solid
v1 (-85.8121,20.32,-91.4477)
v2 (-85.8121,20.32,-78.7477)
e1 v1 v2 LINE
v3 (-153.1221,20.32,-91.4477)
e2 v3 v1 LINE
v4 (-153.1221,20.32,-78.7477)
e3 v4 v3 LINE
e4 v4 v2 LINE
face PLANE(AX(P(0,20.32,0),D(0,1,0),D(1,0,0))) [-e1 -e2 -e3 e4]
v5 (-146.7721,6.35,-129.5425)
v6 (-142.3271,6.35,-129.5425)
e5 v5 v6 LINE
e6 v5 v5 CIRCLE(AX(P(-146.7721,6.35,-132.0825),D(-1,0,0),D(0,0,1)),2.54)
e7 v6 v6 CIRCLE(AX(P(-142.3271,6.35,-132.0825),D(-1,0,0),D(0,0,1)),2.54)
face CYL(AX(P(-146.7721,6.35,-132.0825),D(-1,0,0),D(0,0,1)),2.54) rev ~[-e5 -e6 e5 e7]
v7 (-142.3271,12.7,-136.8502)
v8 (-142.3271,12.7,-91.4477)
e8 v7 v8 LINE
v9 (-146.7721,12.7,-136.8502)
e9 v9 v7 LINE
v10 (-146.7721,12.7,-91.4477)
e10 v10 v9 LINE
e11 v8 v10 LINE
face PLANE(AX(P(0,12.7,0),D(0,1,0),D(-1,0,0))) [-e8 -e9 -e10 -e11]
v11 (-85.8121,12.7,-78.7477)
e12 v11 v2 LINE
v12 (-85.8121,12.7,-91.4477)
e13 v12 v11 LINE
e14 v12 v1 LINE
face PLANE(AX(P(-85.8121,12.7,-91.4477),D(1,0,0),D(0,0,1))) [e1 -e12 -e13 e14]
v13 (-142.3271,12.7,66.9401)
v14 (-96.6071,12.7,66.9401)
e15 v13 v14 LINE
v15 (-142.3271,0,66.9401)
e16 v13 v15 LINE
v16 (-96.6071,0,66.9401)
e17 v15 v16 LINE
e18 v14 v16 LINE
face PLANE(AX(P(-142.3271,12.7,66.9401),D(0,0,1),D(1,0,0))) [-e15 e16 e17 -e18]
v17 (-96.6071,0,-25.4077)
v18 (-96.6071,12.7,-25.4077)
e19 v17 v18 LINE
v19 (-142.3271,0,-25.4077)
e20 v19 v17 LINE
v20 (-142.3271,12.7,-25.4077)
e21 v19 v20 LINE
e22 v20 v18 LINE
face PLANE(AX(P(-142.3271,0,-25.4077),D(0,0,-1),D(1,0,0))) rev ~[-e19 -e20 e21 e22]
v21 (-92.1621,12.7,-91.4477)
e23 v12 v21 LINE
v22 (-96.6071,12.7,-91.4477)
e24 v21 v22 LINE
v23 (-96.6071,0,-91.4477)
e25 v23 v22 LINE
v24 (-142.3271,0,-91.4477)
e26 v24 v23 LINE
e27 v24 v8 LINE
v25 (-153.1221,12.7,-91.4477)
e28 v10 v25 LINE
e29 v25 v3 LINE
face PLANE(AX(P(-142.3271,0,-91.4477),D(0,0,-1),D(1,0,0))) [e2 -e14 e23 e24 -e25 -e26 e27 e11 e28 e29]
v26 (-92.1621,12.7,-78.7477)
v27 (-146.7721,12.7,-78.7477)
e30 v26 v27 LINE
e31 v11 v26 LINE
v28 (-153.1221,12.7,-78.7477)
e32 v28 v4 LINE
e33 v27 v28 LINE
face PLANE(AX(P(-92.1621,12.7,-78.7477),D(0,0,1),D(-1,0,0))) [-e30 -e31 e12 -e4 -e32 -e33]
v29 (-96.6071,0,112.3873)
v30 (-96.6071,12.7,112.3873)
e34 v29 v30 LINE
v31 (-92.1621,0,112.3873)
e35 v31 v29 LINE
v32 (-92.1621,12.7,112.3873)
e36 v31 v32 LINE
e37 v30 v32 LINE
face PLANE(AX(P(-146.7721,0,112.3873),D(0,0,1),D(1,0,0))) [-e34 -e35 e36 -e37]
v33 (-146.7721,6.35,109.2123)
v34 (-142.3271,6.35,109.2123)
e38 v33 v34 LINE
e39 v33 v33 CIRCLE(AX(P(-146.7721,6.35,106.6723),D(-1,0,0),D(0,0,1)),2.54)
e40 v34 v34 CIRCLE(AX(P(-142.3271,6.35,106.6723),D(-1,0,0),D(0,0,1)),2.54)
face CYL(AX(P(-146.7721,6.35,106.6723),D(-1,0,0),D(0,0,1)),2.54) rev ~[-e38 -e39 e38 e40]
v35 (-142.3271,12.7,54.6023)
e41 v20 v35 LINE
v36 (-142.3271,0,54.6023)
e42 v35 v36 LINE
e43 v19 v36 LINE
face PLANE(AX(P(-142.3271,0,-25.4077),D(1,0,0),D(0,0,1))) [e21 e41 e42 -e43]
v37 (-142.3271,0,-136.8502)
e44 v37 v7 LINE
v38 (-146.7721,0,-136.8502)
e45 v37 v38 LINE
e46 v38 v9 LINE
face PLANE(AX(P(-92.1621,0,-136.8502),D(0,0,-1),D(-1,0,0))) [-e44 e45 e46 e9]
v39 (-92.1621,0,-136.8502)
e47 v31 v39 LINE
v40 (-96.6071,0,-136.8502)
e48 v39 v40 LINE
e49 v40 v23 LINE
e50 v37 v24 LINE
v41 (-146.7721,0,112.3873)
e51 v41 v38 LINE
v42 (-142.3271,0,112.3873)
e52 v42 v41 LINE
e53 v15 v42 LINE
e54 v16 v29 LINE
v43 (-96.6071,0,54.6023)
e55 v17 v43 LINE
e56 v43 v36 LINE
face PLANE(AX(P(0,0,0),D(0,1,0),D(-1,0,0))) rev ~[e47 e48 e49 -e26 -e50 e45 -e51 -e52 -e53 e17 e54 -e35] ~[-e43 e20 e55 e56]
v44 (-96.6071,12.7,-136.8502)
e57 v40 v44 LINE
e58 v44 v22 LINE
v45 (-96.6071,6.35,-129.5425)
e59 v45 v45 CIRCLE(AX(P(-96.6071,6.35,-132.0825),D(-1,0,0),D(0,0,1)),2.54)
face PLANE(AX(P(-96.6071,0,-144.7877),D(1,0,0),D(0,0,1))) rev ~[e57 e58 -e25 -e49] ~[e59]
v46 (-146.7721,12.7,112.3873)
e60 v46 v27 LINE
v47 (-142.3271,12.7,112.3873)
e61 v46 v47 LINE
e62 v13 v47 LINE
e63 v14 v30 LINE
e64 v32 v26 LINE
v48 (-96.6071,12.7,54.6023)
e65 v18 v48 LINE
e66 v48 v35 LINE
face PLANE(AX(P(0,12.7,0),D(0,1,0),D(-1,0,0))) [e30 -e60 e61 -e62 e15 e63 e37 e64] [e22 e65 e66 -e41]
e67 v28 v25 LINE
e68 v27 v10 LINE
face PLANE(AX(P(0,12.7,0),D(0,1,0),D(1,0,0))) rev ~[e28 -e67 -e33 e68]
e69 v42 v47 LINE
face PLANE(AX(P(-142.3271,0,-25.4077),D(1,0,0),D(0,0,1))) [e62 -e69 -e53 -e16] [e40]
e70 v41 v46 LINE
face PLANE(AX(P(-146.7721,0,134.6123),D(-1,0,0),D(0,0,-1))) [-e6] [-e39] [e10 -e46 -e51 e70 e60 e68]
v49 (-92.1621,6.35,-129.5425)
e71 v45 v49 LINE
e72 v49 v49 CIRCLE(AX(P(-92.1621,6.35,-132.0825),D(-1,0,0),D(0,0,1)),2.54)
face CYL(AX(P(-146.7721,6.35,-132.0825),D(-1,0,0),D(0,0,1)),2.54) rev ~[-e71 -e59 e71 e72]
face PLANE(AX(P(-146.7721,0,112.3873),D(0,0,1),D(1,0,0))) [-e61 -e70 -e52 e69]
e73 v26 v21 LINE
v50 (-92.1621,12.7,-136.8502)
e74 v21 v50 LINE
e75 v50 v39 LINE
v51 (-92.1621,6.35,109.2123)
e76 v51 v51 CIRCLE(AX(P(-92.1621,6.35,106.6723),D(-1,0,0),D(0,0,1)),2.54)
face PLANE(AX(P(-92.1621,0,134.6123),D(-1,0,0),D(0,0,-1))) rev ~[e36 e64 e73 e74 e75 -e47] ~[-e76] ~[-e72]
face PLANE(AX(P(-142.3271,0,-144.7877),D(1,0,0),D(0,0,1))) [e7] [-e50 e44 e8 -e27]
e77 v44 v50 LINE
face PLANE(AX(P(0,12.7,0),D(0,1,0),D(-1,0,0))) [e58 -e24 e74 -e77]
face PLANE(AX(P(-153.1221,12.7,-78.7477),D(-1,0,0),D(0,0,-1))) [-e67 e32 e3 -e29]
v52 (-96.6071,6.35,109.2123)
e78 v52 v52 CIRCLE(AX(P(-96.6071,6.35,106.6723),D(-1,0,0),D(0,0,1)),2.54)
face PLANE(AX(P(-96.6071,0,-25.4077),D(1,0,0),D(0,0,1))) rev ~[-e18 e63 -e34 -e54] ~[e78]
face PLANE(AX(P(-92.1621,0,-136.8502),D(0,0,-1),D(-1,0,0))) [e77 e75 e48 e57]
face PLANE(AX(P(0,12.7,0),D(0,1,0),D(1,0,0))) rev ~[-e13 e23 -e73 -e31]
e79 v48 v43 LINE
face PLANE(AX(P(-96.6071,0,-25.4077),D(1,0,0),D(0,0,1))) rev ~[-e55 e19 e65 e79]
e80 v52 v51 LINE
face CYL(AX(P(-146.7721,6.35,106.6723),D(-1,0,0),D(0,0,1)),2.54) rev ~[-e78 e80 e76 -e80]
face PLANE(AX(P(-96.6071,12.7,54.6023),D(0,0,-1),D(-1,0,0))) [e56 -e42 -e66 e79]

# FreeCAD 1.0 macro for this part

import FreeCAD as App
import Part
import Sketcher
Q = App.Units.Quantity


def add_polygon(sketch, points):
    """Adds a closed chain of lines whose ends are joined by coincident constraints."""
    first, n = sketch.GeometryCount, len(points)
    for a, b in zip(points, points[1:] + points[:1]):
        sketch.addGeometry(Part.LineSegment(App.Vector(*a, 0), App.Vector(*b, 0)), False)
    for i in range(n):
        sketch.addConstraint(Sketcher.Constraint("Coincident", first + i, 2, first + (i + 1) % n, 1))

doc = App.newDocument("Part")
params = doc.addObject("Spreadsheet::Sheet", "Params")
for row, (alias, value) in enumerate([
    ("sketch1_height", "11 in"),
    ("sketch1_width", "1.8 in"),
    ("sketch1_height2", "2.1 in"),
    ("sketch1_width2", "0.175 in"),
    ("pad1_length", "0.5 in"),
    ("sketch2_height", "0.5 in"),
    ("sketch2_width", "2.65 in"),
    ("pad2_length", "0.3 in"),
    ("sketch3_diameter", "0.2 in"),
    ("pocket1_length", "1000 in"),
    ("sketch4_diameter", "0.2 in"),
    ("pocket2_length", "1000 in"),
    ("sketch5_width", "1.8 in"),
    ("pad3_length", "0.5 in"),
    ("sketch6_height", "0.5 in"),
    ("sketch6_width", "0.175 in"),
    ("pocket3_length", "0.875 in"),
    ("sketch7_height", "0.5 in"),
    ("sketch7_width", "0.175 in"),
    ("pocket4_length", "0.3125 in"),
], start=1):
    params.set(f"A{row}", alias)
    params.set(f"B{row}", "=" + value)
    params.setAlias(f"B{row}", alias)

body = doc.addObject("PartDesign::Body", "Body")

# Sketch on XZ plane
sketch1 = doc.addObject("Sketcher::SketchObject", "Sketch")
body.addObject(sketch1)
sketch1.AttachmentSupport = (doc.XZ_Plane, [""])
sketch1.MapMode = "FlatFace"
add_polygon(sketch1, [(-142.3, -144.8), (-146.8, -144.8), (-146.8, 134.6), (-142.3, 134.6), (-142.3, -25.4), (-96.6, -25.4), (-96.6, 134.6), (-92.2, 134.6), (-92.2, -144.8), (-96.6, -144.8), (-96.6, -91.4), (-142.3, -91.4)])  # lines 0-11
sketch1.addConstraint(Sketcher.Constraint("Horizontal", 0))
sketch1.addConstraint(Sketcher.Constraint("Vertical", 1))
sketch1.addConstraint(Sketcher.Constraint("Horizontal", 2))
sketch1.addConstraint(Sketcher.Constraint("Vertical", 3))
sketch1.addConstraint(Sketcher.Constraint("Horizontal", 4))
sketch1.addConstraint(Sketcher.Constraint("Vertical", 5))
sketch1.addConstraint(Sketcher.Constraint("Horizontal", 6))
sketch1.addConstraint(Sketcher.Constraint("Vertical", 7))
sketch1.addConstraint(Sketcher.Constraint("Horizontal", 8))
sketch1.addConstraint(Sketcher.Constraint("Vertical", 9))
sketch1.addConstraint(Sketcher.Constraint("Horizontal", 10))
sketch1.addConstraint(Sketcher.Constraint("Vertical", 11))
sketch1.addConstraint(Sketcher.Constraint("Horizontal", 2, 2, 5, 2))
sketch1.addConstraint(Sketcher.Constraint("Horizontal", 0, 2, 7, 2))
sketch1.addConstraint(Sketcher.Constraint("Vertical", 5, 2, 8, 2))
sketch1.addConstraint(Sketcher.Constraint("Vertical", 3, 2, 10, 2))
sketch1.addConstraint(Sketcher.Constraint("Equal", 2, 6))
sketch1.addConstraint(Sketcher.Constraint("DistanceY", 1, 1, 1, 2, Q("11 in")))
sketch1.addConstraint(Sketcher.Constraint("DistanceX", 4, 1, 4, 2, Q("1.8 in")))
sketch1.addConstraint(Sketcher.Constraint("DistanceY", 9, 1, 9, 2, Q("2.1 in")))
sketch1.addConstraint(Sketcher.Constraint("DistanceY", 9, 2, 4, 2, Q("2.6 in")))
sketch1.addConstraint(Sketcher.Constraint("DistanceX", 0, 2, 0, 1, Q("0.175 in")))
sketch1.addConstraint(Sketcher.Constraint("DistanceY", 0, 2, -1, 1, Q("5.7003 in")))
sketch1.addConstraint(Sketcher.Constraint("DistanceX", 0, 2, -1, 1, 146.772))
sketch1.setExpression("Constraints[29]", "Params.sketch1_height")
sketch1.setExpression("Constraints[30]", "Params.sketch1_width")
sketch1.setExpression("Constraints[31]", "Params.sketch1_height2")
sketch1.setExpression("Constraints[33]", "Params.sketch1_width2")
pad1 = doc.addObject("PartDesign::Pad", "Pad")
body.addObject(pad1)
pad1.Profile = sketch1
pad1.setExpression("Length", "Params.pad1_length")
pad1.Reversed = True

# Sketch on XZ plane
sketch2 = doc.addObject("Sketcher::SketchObject", "Sketch001")
body.addObject(sketch2)
sketch2.AttachmentSupport = (doc.XZ_Plane, [""])
sketch2.MapMode = "FlatFace"
sketch2.AttachmentOffset = App.Placement(App.Vector(0, 0, -0.5 * 25.4), App.Rotation())
add_polygon(sketch2, [(-153, -91), (-153, -79), (-86, -79), (-86, -91)])  # lines 0-3
sketch2.addConstraint(Sketcher.Constraint("Vertical", 0))
sketch2.addConstraint(Sketcher.Constraint("Horizontal", 1))
sketch2.addConstraint(Sketcher.Constraint("Vertical", 2))
sketch2.addConstraint(Sketcher.Constraint("Horizontal", 3))
sketch2.addConstraint(Sketcher.Constraint("DistanceY", 0, 1, 0, 2, Q("0.5 in")))
sketch2.addConstraint(Sketcher.Constraint("DistanceX", 1, 1, 1, 2, Q("2.65 in")))
sketch2.addConstraint(Sketcher.Constraint("DistanceY", 0, 2, -1, 1, Q("3.1003 in")))
sketch2.addConstraint(Sketcher.Constraint("DistanceX", 0, 2, -1, 1, 153.122))
sketch2.setExpression("Constraints[8]", "Params.sketch2_height")
sketch2.setExpression("Constraints[9]", "Params.sketch2_width")
pad2 = doc.addObject("PartDesign::Pad", "Pad001")
body.addObject(pad2)
pad2.Profile = sketch2
pad2.setExpression("Length", "Params.pad2_length")
pad2.Reversed = True

# Sketch on YZ plane
sketch3 = doc.addObject("Sketcher::SketchObject", "Sketch002")
body.addObject(sketch3)
sketch3.AttachmentSupport = (doc.YZ_Plane, [""])
sketch3.MapMode = "FlatFace"
sketch3.AttachmentOffset = App.Placement(App.Vector(0, 0, -146.7721), App.Rotation())
sketch3.addGeometry(Part.Circle(App.Vector(6.3, 106.7, 0), App.Vector(0, 0, 1), 2.5), False)
sketch3.addConstraint(Sketcher.Constraint("Diameter", 0, Q("0.2 in")))
sketch3.addConstraint(Sketcher.Constraint("DistanceX", -1, 1, 0, 3, Q("0.25 in")))
sketch3.addConstraint(Sketcher.Constraint("DistanceY", -1, 1, 0, 3, Q("4.1997 in")))
sketch3.setExpression("Constraints[0]", "Params.sketch3_diameter")
pocket1 = doc.addObject("PartDesign::Pocket", "Pocket")
body.addObject(pocket1)
pocket1.Profile = sketch3
pocket1.setExpression("Length", "Params.pocket1_length")
pocket1.Reversed = True

# Sketch on YZ plane
sketch4 = doc.addObject("Sketcher::SketchObject", "Sketch003")
body.addObject(sketch4)
sketch4.AttachmentSupport = (doc.YZ_Plane, [""])
sketch4.MapMode = "FlatFace"
sketch4.AttachmentOffset = App.Placement(App.Vector(0, 0, -146.7721), App.Rotation())
sketch4.addGeometry(Part.Circle(App.Vector(6.3, -132.1, 0), App.Vector(0, 0, 1), 2.5), False)
sketch4.addConstraint(Sketcher.Constraint("Diameter", 0, Q("0.2 in")))
sketch4.addConstraint(Sketcher.Constraint("DistanceX", -1, 1, 0, 3, Q("0.25 in")))
sketch4.addConstraint(Sketcher.Constraint("DistanceY", 0, 3, -1, 1, Q("5.2001 in")))
sketch4.setExpression("Constraints[0]", "Params.sketch4_diameter")
pocket2 = doc.addObject("PartDesign::Pocket", "Pocket001")
body.addObject(pocket2)
pocket2.Profile = sketch4
pocket2.setExpression("Length", "Params.pocket2_length")
pocket2.Reversed = True

# Sketch on XZ plane
sketch5 = doc.addObject("Sketcher::SketchObject", "Sketch004")
body.addObject(sketch5)
sketch5.AttachmentSupport = (doc.XZ_Plane, [""])
sketch5.MapMode = "FlatFace"
sketch5.AttachmentOffset = App.Placement(App.Vector(0, 0, -0.5 * 25.4), App.Rotation())
add_polygon(sketch5, [(-142, 55), (-142, 67), (-97, 67), (-97, 55)])  # lines 0-3
sketch5.addConstraint(Sketcher.Constraint("Vertical", 0))
sketch5.addConstraint(Sketcher.Constraint("Horizontal", 1))
sketch5.addConstraint(Sketcher.Constraint("Vertical", 2))
sketch5.addConstraint(Sketcher.Constraint("Horizontal", 3))
sketch5.addConstraint(Sketcher.Constraint("DistanceX", 1, 1, 1, 2, Q("1.8 in")))
sketch5.addConstraint(Sketcher.Constraint("DistanceY", 0, 1, 0, 2, 12.3378))
sketch5.addConstraint(Sketcher.Constraint("DistanceY", -1, 1, 2, 2, Q("2.1497 in")))
sketch5.addConstraint(Sketcher.Constraint("DistanceX", 0, 2, -1, 1, 142.327))
sketch5.setExpression("Constraints[8]", "Params.sketch5_width")
pad3 = doc.addObject("PartDesign::Pad", "Pad002")
body.addObject(pad3)
pad3.Profile = sketch5
pad3.setExpression("Length", "Params.pad3_length")

# Sketch on XY plane
sketch6 = doc.addObject("Sketcher::SketchObject", "Sketch005")
body.addObject(sketch6)
sketch6.AttachmentSupport = (doc.XY_Plane, [""])
sketch6.MapMode = "FlatFace"
sketch6.AttachmentOffset = App.Placement(App.Vector(0, 0, 5.2996969 * 25.4), App.Rotation())
add_polygon(sketch6, [(-142.3, 12.7), (-146.8, 12.7), (-146.8, 0), (-142.3, 0)])  # lines 0-3
add_polygon(sketch6, [(-96.6, 12.7), (-96.6, 0), (-92.2, 0), (-92.2, 12.7)])  # lines 4-7
sketch6.addConstraint(Sketcher.Constraint("Horizontal", 0))
sketch6.addConstraint(Sketcher.Constraint("Vertical", 1))
sketch6.addConstraint(Sketcher.Constraint("Horizontal", 2))
sketch6.addConstraint(Sketcher.Constraint("Vertical", 3))
sketch6.addConstraint(Sketcher.Constraint("Vertical", 4))
sketch6.addConstraint(Sketcher.Constraint("Horizontal", 5))
sketch6.addConstraint(Sketcher.Constraint("Vertical", 6))
sketch6.addConstraint(Sketcher.Constraint("Horizontal", 7))
sketch6.addConstraint(Sketcher.Constraint("PointOnObject", 1, 2, -1))
sketch6.addConstraint(Sketcher.Constraint("PointOnObject", 4, 2, -1))
sketch6.addConstraint(Sketcher.Constraint("Horizontal", 3, 2, 6, 2))
sketch6.addConstraint(Sketcher.Constraint("Equal", 2, 5))
sketch6.addConstraint(Sketcher.Constraint("DistanceY", 1, 2, 1, 1, Q("0.5 in")))
sketch6.addConstraint(Sketcher.Constraint("DistanceX", 2, 2, 4, 2, Q("1.8 in")))
sketch6.addConstraint(Sketcher.Constraint("DistanceX", 0, 2, 0, 1, Q("0.175 in")))
sketch6.addConstraint(Sketcher.Constraint("DistanceX", 0, 2, -1, 1, 146.772))
sketch6.setExpression("Constraints[20]", "Params.sketch6_height")
sketch6.setExpression("Constraints[22]", "Params.sketch6_width")
pocket3 = doc.addObject("PartDesign::Pocket", "Pocket002")
body.addObject(pocket3)
pocket3.Profile = sketch6
pocket3.setExpression("Length", "Params.pocket3_length")

# Sketch on XY plane
sketch7 = doc.addObject("Sketcher::SketchObject", "Sketch006")
body.addObject(sketch7)
sketch7.AttachmentSupport = (doc.XY_Plane, [""])
sketch7.MapMode = "FlatFace"
sketch7.AttachmentOffset = App.Placement(App.Vector(0, 0, -5.7003031 * 25.4), App.Rotation())
add_polygon(sketch7, [(-142.3, 12.7), (-142.3, 0), (-146.8, 0), (-146.8, 12.7)])  # lines 0-3
add_polygon(sketch7, [(-92.2, 0), (-96.6, 0), (-96.6, 12.7), (-92.2, 12.7)])  # lines 4-7
sketch7.addConstraint(Sketcher.Constraint("Vertical", 0))
sketch7.addConstraint(Sketcher.Constraint("Horizontal", 1))
sketch7.addConstraint(Sketcher.Constraint("Vertical", 2))
sketch7.addConstraint(Sketcher.Constraint("Horizontal", 3))
sketch7.addConstraint(Sketcher.Constraint("Horizontal", 4))
sketch7.addConstraint(Sketcher.Constraint("Vertical", 5))
sketch7.addConstraint(Sketcher.Constraint("Horizontal", 6))
sketch7.addConstraint(Sketcher.Constraint("Vertical", 7))
sketch7.addConstraint(Sketcher.Constraint("PointOnObject", 0, 2, -1))
sketch7.addConstraint(Sketcher.Constraint("PointOnObject", 4, 2, -1))
sketch7.addConstraint(Sketcher.Constraint("Horizontal", 3, 2, 5, 2))
sketch7.addConstraint(Sketcher.Constraint("Equal", 3, 4))
sketch7.addConstraint(Sketcher.Constraint("DistanceY", 0, 2, 0, 1, Q("0.5 in")))
sketch7.addConstraint(Sketcher.Constraint("DistanceX", 0, 2, 4, 2, Q("1.8 in")))
sketch7.addConstraint(Sketcher.Constraint("DistanceX", 1, 2, 1, 1, Q("0.175 in")))
sketch7.addConstraint(Sketcher.Constraint("DistanceX", 0, 2, -1, 1, 142.327))
sketch7.setExpression("Constraints[20]", "Params.sketch7_height")
sketch7.setExpression("Constraints[22]", "Params.sketch7_width")
pocket4 = doc.addObject("PartDesign::Pocket", "Pocket003")
body.addObject(pocket4)
pocket4.Profile = sketch7
pocket4.setExpression("Length", "Params.pocket4_length")
pocket4.Reversed = True

doc.recompute()
